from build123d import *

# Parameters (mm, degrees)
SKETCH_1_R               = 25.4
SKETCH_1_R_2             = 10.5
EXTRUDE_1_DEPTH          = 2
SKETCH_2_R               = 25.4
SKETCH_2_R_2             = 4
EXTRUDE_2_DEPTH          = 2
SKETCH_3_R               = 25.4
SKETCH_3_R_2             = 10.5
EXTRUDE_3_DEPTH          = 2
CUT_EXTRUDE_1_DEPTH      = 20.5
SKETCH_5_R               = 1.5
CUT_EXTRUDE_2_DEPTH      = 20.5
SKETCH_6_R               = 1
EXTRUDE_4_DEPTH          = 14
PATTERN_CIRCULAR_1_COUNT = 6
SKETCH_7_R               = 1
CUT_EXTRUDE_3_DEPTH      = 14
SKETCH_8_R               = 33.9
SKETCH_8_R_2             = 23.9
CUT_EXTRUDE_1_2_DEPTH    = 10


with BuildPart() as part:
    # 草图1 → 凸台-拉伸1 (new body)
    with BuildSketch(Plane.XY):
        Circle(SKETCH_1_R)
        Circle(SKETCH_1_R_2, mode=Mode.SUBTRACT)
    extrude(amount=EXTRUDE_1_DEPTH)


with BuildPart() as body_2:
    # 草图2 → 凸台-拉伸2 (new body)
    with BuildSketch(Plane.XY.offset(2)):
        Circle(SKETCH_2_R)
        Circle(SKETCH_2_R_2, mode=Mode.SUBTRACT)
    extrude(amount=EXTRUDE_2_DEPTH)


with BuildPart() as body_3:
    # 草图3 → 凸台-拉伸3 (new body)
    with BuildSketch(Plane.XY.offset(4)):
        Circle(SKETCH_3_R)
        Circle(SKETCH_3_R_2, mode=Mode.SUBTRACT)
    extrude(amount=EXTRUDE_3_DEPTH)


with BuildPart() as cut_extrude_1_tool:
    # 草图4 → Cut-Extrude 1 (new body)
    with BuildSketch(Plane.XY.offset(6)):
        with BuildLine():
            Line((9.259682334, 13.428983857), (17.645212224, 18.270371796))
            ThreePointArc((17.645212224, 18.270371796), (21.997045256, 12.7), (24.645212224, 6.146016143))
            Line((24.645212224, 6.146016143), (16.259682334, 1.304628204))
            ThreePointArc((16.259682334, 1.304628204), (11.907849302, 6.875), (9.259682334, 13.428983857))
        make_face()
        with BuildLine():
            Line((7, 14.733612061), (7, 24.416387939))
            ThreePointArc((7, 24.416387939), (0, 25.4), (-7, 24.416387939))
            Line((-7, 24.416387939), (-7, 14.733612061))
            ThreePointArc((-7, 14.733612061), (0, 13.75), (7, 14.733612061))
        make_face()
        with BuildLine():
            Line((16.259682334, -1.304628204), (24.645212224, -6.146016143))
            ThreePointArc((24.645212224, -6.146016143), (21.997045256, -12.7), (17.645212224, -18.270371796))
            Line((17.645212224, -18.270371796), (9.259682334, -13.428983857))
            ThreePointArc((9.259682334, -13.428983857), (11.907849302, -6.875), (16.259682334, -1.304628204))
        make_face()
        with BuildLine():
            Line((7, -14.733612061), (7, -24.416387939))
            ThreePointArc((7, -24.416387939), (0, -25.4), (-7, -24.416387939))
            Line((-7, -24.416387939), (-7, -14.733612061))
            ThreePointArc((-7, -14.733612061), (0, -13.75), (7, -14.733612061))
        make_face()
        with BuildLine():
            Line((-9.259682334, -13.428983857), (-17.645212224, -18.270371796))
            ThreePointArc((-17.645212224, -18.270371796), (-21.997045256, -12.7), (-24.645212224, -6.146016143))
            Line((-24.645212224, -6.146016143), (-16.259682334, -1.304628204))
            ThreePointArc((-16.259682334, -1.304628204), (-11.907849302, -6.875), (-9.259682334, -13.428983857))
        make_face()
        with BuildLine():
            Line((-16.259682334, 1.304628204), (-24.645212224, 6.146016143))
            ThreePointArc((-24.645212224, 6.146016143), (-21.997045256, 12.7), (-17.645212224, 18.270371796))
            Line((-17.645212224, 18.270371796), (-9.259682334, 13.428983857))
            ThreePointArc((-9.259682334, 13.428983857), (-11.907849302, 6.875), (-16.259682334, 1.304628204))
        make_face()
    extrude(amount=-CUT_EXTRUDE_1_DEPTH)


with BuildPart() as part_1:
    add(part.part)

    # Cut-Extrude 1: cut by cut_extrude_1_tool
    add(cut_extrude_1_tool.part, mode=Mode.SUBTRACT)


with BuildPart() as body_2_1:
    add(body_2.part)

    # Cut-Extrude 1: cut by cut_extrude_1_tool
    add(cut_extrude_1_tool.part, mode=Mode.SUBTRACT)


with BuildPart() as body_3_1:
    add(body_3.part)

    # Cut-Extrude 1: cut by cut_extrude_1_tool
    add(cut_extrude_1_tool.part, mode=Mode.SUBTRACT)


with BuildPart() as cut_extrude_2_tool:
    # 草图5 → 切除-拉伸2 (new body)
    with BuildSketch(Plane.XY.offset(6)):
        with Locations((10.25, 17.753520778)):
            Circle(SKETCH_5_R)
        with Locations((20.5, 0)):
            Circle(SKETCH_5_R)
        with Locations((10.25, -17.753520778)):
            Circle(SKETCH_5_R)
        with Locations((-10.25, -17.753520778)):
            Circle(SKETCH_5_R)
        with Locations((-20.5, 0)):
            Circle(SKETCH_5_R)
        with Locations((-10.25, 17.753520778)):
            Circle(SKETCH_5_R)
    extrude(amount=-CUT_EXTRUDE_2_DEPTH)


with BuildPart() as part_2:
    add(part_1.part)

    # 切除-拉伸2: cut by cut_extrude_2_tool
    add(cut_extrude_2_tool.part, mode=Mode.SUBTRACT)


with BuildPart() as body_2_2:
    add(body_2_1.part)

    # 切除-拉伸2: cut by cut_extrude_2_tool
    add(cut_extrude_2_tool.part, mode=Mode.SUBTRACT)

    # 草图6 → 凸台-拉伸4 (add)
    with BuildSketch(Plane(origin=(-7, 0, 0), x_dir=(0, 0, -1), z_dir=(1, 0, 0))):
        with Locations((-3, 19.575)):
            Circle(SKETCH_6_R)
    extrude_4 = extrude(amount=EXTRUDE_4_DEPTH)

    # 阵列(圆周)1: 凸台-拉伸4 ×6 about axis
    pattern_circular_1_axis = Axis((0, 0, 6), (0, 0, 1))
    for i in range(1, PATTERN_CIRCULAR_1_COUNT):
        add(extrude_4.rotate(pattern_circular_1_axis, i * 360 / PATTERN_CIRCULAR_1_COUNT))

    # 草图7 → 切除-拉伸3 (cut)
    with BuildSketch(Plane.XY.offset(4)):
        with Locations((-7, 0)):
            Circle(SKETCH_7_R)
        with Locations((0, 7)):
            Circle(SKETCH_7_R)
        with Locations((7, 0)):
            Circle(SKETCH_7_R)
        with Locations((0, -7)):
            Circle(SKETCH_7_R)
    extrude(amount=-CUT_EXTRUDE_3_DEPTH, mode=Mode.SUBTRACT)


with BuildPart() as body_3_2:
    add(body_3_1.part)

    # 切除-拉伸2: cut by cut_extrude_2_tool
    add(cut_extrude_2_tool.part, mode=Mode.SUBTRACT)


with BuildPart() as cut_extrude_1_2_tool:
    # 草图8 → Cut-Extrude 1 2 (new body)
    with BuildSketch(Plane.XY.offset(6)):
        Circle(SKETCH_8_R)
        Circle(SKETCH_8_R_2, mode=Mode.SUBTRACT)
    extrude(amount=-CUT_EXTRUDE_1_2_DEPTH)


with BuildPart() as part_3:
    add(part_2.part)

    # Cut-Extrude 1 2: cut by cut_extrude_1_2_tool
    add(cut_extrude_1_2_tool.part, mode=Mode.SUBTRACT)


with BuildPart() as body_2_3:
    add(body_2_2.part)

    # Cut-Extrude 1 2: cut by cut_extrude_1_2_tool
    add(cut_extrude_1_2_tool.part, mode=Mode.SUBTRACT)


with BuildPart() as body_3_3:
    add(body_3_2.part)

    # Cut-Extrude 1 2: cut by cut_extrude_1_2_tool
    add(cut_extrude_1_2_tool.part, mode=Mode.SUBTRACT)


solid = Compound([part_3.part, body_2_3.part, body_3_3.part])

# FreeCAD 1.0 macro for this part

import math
import FreeCAD as App
import Part
import Sketcher
from FreeCAD import Vector
Q = App.Units.Quantity

doc = App.newDocument("Part")
body = doc.addObject("PartDesign::Body", "Body")

# Sketch on XY plane
sketch1 = doc.addObject("Sketcher::SketchObject", "Sketch")
body.addObject(sketch1)
sketch1.AttachmentSupport = (doc.XY_Plane, [""])
sketch1.MapMode = "FlatFace"
sketch1.addGeometry([
    Part.Circle(Vector(0, 0, 0), Vector(0, 0, 1), 25.4),
    Part.Circle(Vector(0, 0, 0), Vector(0, 0, 1), 10.5),
], False)
sketch1.addConstraint([
    Sketcher.Constraint("Coincident", 0, 3, -1, 1),
    Sketcher.Constraint("Coincident", 1, 3, -1, 1),
    Sketcher.Constraint("Diameter", 1, Q("21 mm")),
    Sketcher.Constraint("Diameter", 0, Q("50.8 mm")),
])
pad1 = doc.addObject("PartDesign::Pad", "Pad")
body.addObject(pad1)
pad1.Profile = sketch1
pad1.Length = 2
body2 = doc.addObject("PartDesign::Body", "Body001")

# Sketch on XY plane
sketch2 = doc.addObject("Sketcher::SketchObject", "Sketch001")
body2.addObject(sketch2)
sketch2.AttachmentSupport = (doc.getObject("XY_Plane001"), [""])
sketch2.MapMode = "FlatFace"
sketch2.AttachmentOffset = App.Placement(Vector(0, 0, 2), App.Rotation())
sketch2.addGeometry([
    Part.Circle(Vector(0, 0, 0), Vector(0, 0, 1), 25.4),
    Part.Circle(Vector(0, 0, 0), Vector(0, 0, 1), 4),
], False)
sketch2.addConstraint([
    Sketcher.Constraint("Coincident", 0, 3, -1, 1),
    Sketcher.Constraint("Coincident", 1, 3, -1, 1),
    Sketcher.Constraint("Diameter", 1, Q("8 mm")),
    Sketcher.Constraint("Diameter", 0, Q("50.8 mm")),
])
pad2 = doc.addObject("PartDesign::Pad", "Pad001")
body2.addObject(pad2)
pad2.Profile = sketch2
pad2.Length = 2
body3 = doc.addObject("PartDesign::Body", "Body002")

# Sketch on XY plane
sketch3 = doc.addObject("Sketcher::SketchObject", "Sketch002")
body3.addObject(sketch3)
sketch3.AttachmentSupport = (doc.getObject("XY_Plane002"), [""])
sketch3.MapMode = "FlatFace"
sketch3.AttachmentOffset = App.Placement(Vector(0, 0, 4), App.Rotation())
sketch3.addGeometry([
    Part.Circle(Vector(0, 0, 0), Vector(0, 0, 1), 25.4),
    Part.Circle(Vector(0, 0, 0), Vector(0, 0, 1), 10.5),
], False)
sketch3.addConstraint([
    Sketcher.Constraint("Coincident", 0, 3, -1, 1),
    Sketcher.Constraint("Coincident", 1, 3, -1, 1),
    Sketcher.Constraint("Diameter", 1, Q("21 mm")),
    Sketcher.Constraint("Diameter", 0, Q("50.8 mm")),
])
pad3 = doc.addObject("PartDesign::Pad", "Pad002")
body3.addObject(pad3)
pad3.Profile = sketch3
pad3.Length = 2
body4 = doc.addObject("PartDesign::Body", "Body003")
body4.AllowCompound = True

# Sketch on XY plane
sketch4 = doc.addObject("Sketcher::SketchObject", "Sketch003")
body4.addObject(sketch4)
sketch4.AttachmentSupport = (doc.getObject("XY_Plane003"), [""])
sketch4.MapMode = "FlatFace"
sketch4.AttachmentOffset = App.Placement(Vector(0, 0, 6), App.Rotation())
sketch4.addGeometry([
    Part.LineSegment(Vector(17.645212, 18.270372, 0), Vector(9.259682, 13.428984, 0)),  # 0
    Part.ArcOfCircle(Part.Circle(Vector(33.904895, 19.575, 0), Vector(0, 0, 1), 25.4), math.radians(-165.99721), math.radians(-134.00279)),  # 1
    Part.LineSegment(Vector(16.259682, 1.304628, 0), Vector(24.645212, 6.146016, 0)),  # 2
    Part.ArcOfCircle(Part.Circle(Vector(0, 0, 0), Vector(0, 0, 1), 25.4), math.radians(14.00279), math.radians(45.99721)),  # 3
    Part.LineSegment(Vector(7, 14.733612, 0), Vector(7, 24.416388, 0)),  # 4
    Part.ArcOfCircle(Part.Circle(Vector(0, 0, 0), Vector(0, 0, 1), 25.4), math.radians(74.00279), math.radians(105.99721)),  # 5
    Part.LineSegment(Vector(-7, 24.416388, 0), Vector(-7, 14.733612, 0)),  # 6
    Part.ArcOfCircle(Part.Circle(Vector(0, 39.15, 0), Vector(0, 0, 1), 25.4), math.radians(-105.99721), math.radians(-74.00279)),  # 7
    Part.LineSegment(Vector(24.645212, -6.146016, 0), Vector(16.259682, -1.304628, 0)),  # 8
    Part.ArcOfCircle(Part.Circle(Vector(33.904895, -19.575, 0), Vector(0, 0, 1), 25.4), math.radians(134.00279), math.radians(165.99721)),  # 9
    Part.LineSegment(Vector(9.259682, -13.428984, 0), Vector(17.645212, -18.270372, 0)),  # 10
    Part.ArcOfCircle(Part.Circle(Vector(0, 0, 0), Vector(0, 0, 1), 25.4), math.radians(-45.99721), math.radians(-14.00279)),  # 11
    Part.LineSegment(Vector(7, -24.416388, 0), Vector(7, -14.733612, 0)),  # 12
    Part.ArcOfCircle(Part.Circle(Vector(0, -39.15, 0), Vector(0, 0, 1), 25.4), math.radians(74.00279), math.radians(105.99721)),  # 13
    Part.LineSegment(Vector(-7, -14.733612, 0), Vector(-7, -24.416388, 0)),  # 14
    Part.ArcOfCircle(Part.Circle(Vector(0, 0, 0), Vector(0, 0, 1), 25.4), math.radians(-105.99721), math.radians(-74.00279)),  # 15
    Part.LineSegment(Vector(-17.645212, -18.270372, 0), Vector(-9.259682, -13.428984, 0)),  # 16
    Part.ArcOfCircle(Part.Circle(Vector(-33.904895, -19.575, 0), Vector(0, 0, 1), 25.4), math.radians(14.00279), math.radians(45.99721)),  # 17
    Part.LineSegment(Vector(-16.259682, -1.304628, 0), Vector(-24.645212, -6.146016, 0)),  # 18
    Part.ArcOfCircle(Part.Circle(Vector(0, 0, 0), Vector(0, 0, 1), 25.4), math.radians(-165.99721), math.radians(-134.00279)),  # 19
    Part.LineSegment(Vector(-24.645212, 6.146016, 0), Vector(-16.259682, 1.304628, 0)),  # 20
    Part.ArcOfCircle(Part.Circle(Vector(-33.904895, 19.575, 0), Vector(0, 0, 1), 25.4), math.radians(-45.99721), math.radians(-14.00279)),  # 21
    Part.LineSegment(Vector(-9.259682, 13.428984, 0), Vector(-17.645212, 18.270372, 0)),  # 22
    Part.ArcOfCircle(Part.Circle(Vector(0, 0, 0), Vector(0, 0, 1), 25.4), math.radians(134.00279), math.radians(165.99721)),  # 23
], False)
sketch4.addConstraint([
    Sketcher.Constraint("Coincident", 0, 2, 1, 1),
    Sketcher.Constraint("Coincident", 1, 2, 2, 1),
    Sketcher.Constraint("Coincident", 2, 2, 3, 1),
    Sketcher.Constraint("Coincident", 3, 2, 0, 1),
    Sketcher.Constraint("Coincident", 4, 2, 5, 1),
    Sketcher.Constraint("Coincident", 5, 2, 6, 1),
    Sketcher.Constraint("Coincident", 6, 2, 7, 1),
    Sketcher.Constraint("Coincident", 7, 2, 4, 1),
    Sketcher.Constraint("Coincident", 8, 2, 9, 1),
    Sketcher.Constraint("Coincident", 9, 2, 10, 1),
    Sketcher.Constraint("Coincident", 10, 2, 11, 1),
    Sketcher.Constraint("Coincident", 11, 2, 8, 1),
    Sketcher.Constraint("Coincident", 12, 2, 13, 1),
    Sketcher.Constraint("Coincident", 13, 2, 14, 1),
    Sketcher.Constraint("Coincident", 14, 2, 15, 1),
    Sketcher.Constraint("Coincident", 15, 2, 12, 1),
    Sketcher.Constraint("Coincident", 16, 2, 17, 1),
    Sketcher.Constraint("Coincident", 17, 2, 18, 1),
    Sketcher.Constraint("Coincident", 18, 2, 19, 1),
    Sketcher.Constraint("Coincident", 19, 2, 16, 1),
    Sketcher.Constraint("Coincident", 20, 2, 21, 1),
    Sketcher.Constraint("Coincident", 21, 2, 22, 1),
    Sketcher.Constraint("Coincident", 22, 2, 23, 1),
    Sketcher.Constraint("Coincident", 23, 2, 20, 1),
    Sketcher.Constraint("Vertical", 4),
    Sketcher.Constraint("Vertical", 6),
    Sketcher.Constraint("Vertical", 12),
    Sketcher.Constraint("Vertical", 14),
    Sketcher.Constraint("Coincident", 3, 3, -1, 1),
    Sketcher.Constraint("Coincident", 5, 3, -1, 1),
    Sketcher.Constraint("Coincident", 11, 3, -1, 1),
    Sketcher.Constraint("Coincident", 15, 3, -1, 1),
    Sketcher.Constraint("Coincident", 19, 3, -1, 1),
    Sketcher.Constraint("Coincident", 23, 3, -1, 1),
    Sketcher.Constraint("Equal", 1, 3),
    Sketcher.Constraint("Equal", 3, 5),
    Sketcher.Constraint("Equal", 5, 7),
    Sketcher.Constraint("Equal", 7, 9),
    Sketcher.Constraint("Equal", 9, 11),
    Sketcher.Constraint("Equal", 11, 13),
    Sketcher.Constraint("Equal", 13, 15),
    Sketcher.Constraint("Equal", 15, 17),
    Sketcher.Constraint("Equal", 17, 19),
    Sketcher.Constraint("Equal", 19, 21),
    Sketcher.Constraint("Equal", 21, 23),
    Sketcher.Constraint("Symmetric", 7, 3, 13, 3, -1, 1),
    Sketcher.Constraint("Symmetric", 1, 3, 17, 3, -1, 1),
    Sketcher.Constraint("Symmetric", 9, 3, 21, 3, -1, 1),
    Sketcher.Constraint("Symmetric", 9, 3, 17, 3, -2),
    Sketcher.Constraint("Symmetric", 6, 2, 7, 2, -2),
    Sketcher.Constraint("Parallel", 0, 2),
    Sketcher.Constraint("Parallel", 8, 10),
    Sketcher.Constraint("Parallel", 2, 16),
    Sketcher.Constraint("Parallel", 16, 18),
    Sketcher.Constraint("Parallel", 10, 20),
    Sketcher.Constraint("Parallel", 20, 22),
    Sketcher.Constraint("Horizontal", 12, 2, 13, 2),
    Sketcher.Constraint("Horizontal", 9, 2, 16, 2),
    Sketcher.Constraint("Horizontal", 8, 2, 17, 2),
    Sketcher.Constraint("Horizontal", 11, 2, 18, 2),
    Sketcher.Constraint("Horizontal", 1, 2, 20, 2),
    Sketcher.Constraint("Horizontal", 0, 2, 21, 2),
    Sketcher.Constraint("Vertical", 1, 2, 8, 2),
    Sketcher.Constraint("Vertical", 0, 2, 9, 2),
    Sketcher.Constraint("Vertical", 7, 2, 12, 2),
    Sketcher.Constraint("Equal", 0, 2),
    Sketcher.Constraint("Radius", 1, Q("25.4 mm")),
    Sketcher.Constraint("Angle", 0, Q("-150 deg")),
    Sketcher.Constraint("DistanceX", -1, 1, 4, 2, Q("7 mm")),
    Sketcher.Constraint("DistanceX", 0, 2, 1, 2, Q("7 mm")),
    Sketcher.Constraint("DistanceY", -1, 1, 7, 3, Q("39.15 mm")),
    Sketcher.Constraint("DistanceY", 9, 3, 1, 3, Q("39.15 mm")),
    Sketcher.Constraint("DistanceY", 8, 2, -1, 1, Q("1.304628 mm")),
])
pad4 = doc.addObject("PartDesign::Pad", "Pad003")
body4.addObject(pad4)
pad4.Profile = sketch4
pad4.Length = 20.5
pad4.Reversed = True
doc.recompute()

body5 = doc.addObject("PartDesign::Body", "Body004")
body5.BaseFeature = body4
boolean = doc.addObject("PartDesign::Boolean", "Boolean")
body.addObject(boolean)
boolean.Type = "Cut"
boolean.addObjects([body5])
doc.recompute()

body6 = doc.addObject("PartDesign::Body", "Body005")
body6.BaseFeature = body4
boolean2 = doc.addObject("PartDesign::Boolean", "Boolean001")
body2.addObject(boolean2)
boolean2.Type = "Cut"
boolean2.addObjects([body6])
doc.recompute()

boolean3 = doc.addObject("PartDesign::Boolean", "Boolean002")
body3.addObject(boolean3)
boolean3.Type = "Cut"
boolean3.addObjects([body4])
body7 = doc.addObject("PartDesign::Body", "Body006")
body7.AllowCompound = True

# Sketch on XY plane
sketch5 = doc.addObject("Sketcher::SketchObject", "Sketch004")
body7.addObject(sketch5)
sketch5.AttachmentSupport = (doc.getObject("XY_Plane006"), [""])
sketch5.MapMode = "FlatFace"
sketch5.AttachmentOffset = App.Placement(Vector(0, 0, 6), App.Rotation())
sketch5.addGeometry([
    Part.Circle(Vector(10.25, 17.753521, 0), Vector(0, 0, 1), 1.5),  # 0
    Part.Circle(Vector(20.5, 0, 0), Vector(0, 0, 1), 1.5),  # 1
    Part.Circle(Vector(10.25, -17.753521, 0), Vector(0, 0, 1), 1.5),  # 2
    Part.Circle(Vector(-10.25, -17.753521, 0), Vector(0, 0, 1), 1.5),  # 3
    Part.Circle(Vector(-20.5, 0, 0), Vector(0, 0, 1), 1.5),  # 4
    Part.Circle(Vector(-10.25, 17.753521, 0), Vector(0, 0, 1), 1.5),  # 5
], False)
sketch5.addConstraint([
    Sketcher.Constraint("Equal", 0, 1),
    Sketcher.Constraint("Equal", 1, 2),
    Sketcher.Constraint("Equal", 2, 3),
    Sketcher.Constraint("Equal", 3, 4),
    Sketcher.Constraint("Equal", 4, 5),
    Sketcher.Constraint("Symmetric", 0, 3, 3, 3, -1, 1),
    Sketcher.Constraint("Symmetric", 1, 3, 4, 3, -1, 1),
    Sketcher.Constraint("Symmetric", 2, 3, 5, 3, -1, 1),
    Sketcher.Constraint("Symmetric", 2, 3, 3, 3, -2),
    Sketcher.Constraint("PointOnObject", 1, 3, -1),
    Sketcher.Constraint("Diameter", 0, Q("3 mm")),
    Sketcher.Constraint("DistanceX", 4, 3, 1, 3, Q("41 mm")),
    Sketcher.Constraint("DistanceX", 3, 3, 2, 3, Q("20.5 mm")),
    Sketcher.Constraint("DistanceY", -1, 1, 0, 3, Q("17.753521 mm")),
])
pad5 = doc.addObject("PartDesign::Pad", "Pad004")
body7.addObject(pad5)
pad5.Profile = sketch5
pad5.Length = 20.5
pad5.Reversed = True
doc.recompute()

body8 = doc.addObject("PartDesign::Body", "Body007")
body8.BaseFeature = body7
boolean4 = doc.addObject("PartDesign::Boolean", "Boolean003")
body.addObject(boolean4)
boolean4.Type = "Cut"
boolean4.addObjects([body8])
doc.recompute()

body9 = doc.addObject("PartDesign::Body", "Body008")
body9.BaseFeature = body7
boolean5 = doc.addObject("PartDesign::Boolean", "Boolean004")
body2.addObject(boolean5)
boolean5.Type = "Cut"
boolean5.addObjects([body9])
doc.recompute()

# Sketch on YZ plane
sketch6 = doc.addObject("Sketcher::SketchObject", "Sketch005")
body2.addObject(sketch6)
sketch6.AttachmentSupport = (doc.getObject("YZ_Plane001"), [""])
sketch6.MapMode = "FlatFace"
sketch6.AttachmentOffset = App.Placement(Vector(0, 0, -7), App.Rotation())
sketch6.addGeometry(Part.Circle(Vector(19.575, 3, 0), Vector(0, 0, 1), 1), False)
sketch6.addConstraint([
    Sketcher.Constraint("Diameter", 0, Q("2 mm")),
    Sketcher.Constraint("DistanceY", -1, 1, 0, 3, Q("3 mm")),
    Sketcher.Constraint("DistanceX", -1, 1, 0, 3, Q("19.575 mm")),
])
pad6 = doc.addObject("PartDesign::Pad", "Pad005")
body2.addObject(pad6)
pad6.Profile = sketch6
pad6.Length = 14
doc.recompute()

polarpattern = doc.addObject("PartDesign::PolarPattern", "PolarPattern")
body2.addObject(polarpattern)
polarpattern.Originals = [pad6]
polarpattern.Axis = (doc.getObject("Z_Axis001"), [""])
polarpattern.Angle = 360
polarpattern.Occurrences = 6
body2.Tip = polarpattern

# Sketch on XY plane
sketch7 = doc.addObject("Sketcher::SketchObject", "Sketch006")
body2.addObject(sketch7)
sketch7.AttachmentSupport = (doc.getObject("XY_Plane001"), [""])
sketch7.MapMode = "FlatFace"
sketch7.AttachmentOffset = App.Placement(Vector(0, 0, 4), App.Rotation())
sketch7.addGeometry([
    Part.Circle(Vector(-7, 0, 0), Vector(0, 0, 1), 1),
    Part.Circle(Vector(0, 7, 0), Vector(0, 0, 1), 1),
    Part.Circle(Vector(7, 0, 0), Vector(0, 0, 1), 1),
    Part.Circle(Vector(0, -7, 0), Vector(0, 0, 1), 1),
], False)
sketch7.addConstraint([
    Sketcher.Constraint("Equal", 0, 1),
    Sketcher.Constraint("Equal", 1, 2),
    Sketcher.Constraint("Equal", 2, 3),
    Sketcher.Constraint("Symmetric", 0, 3, 2, 3, -1, 1),
    Sketcher.Constraint("Symmetric", 1, 3, 3, 3, -1, 1),
    Sketcher.Constraint("PointOnObject", 0, 3, -1),
    Sketcher.Constraint("PointOnObject", 1, 3, -2),
    Sketcher.Constraint("Diameter", 0, Q("2 mm")),
    Sketcher.Constraint("DistanceX", 0, 3, -1, 1, Q("7 mm")),
    Sketcher.Constraint("DistanceY", -1, 1, 1, 3, Q("7 mm")),
])
pocket1 = doc.addObject("PartDesign::Pocket", "Pocket")
body2.addObject(pocket1)
pocket1.Profile = sketch7
pocket1.Length = 14
doc.recompute()

boolean6 = doc.addObject("PartDesign::Boolean", "Boolean005")
body3.addObject(boolean6)
boolean6.Type = "Cut"
boolean6.addObjects([body7])
body10 = doc.addObject("PartDesign::Body", "Body009")

# Sketch on XY plane
sketch8 = doc.addObject("Sketcher::SketchObject", "Sketch007")
body10.addObject(sketch8)
sketch8.AttachmentSupport = (doc.getObject("XY_Plane009"), [""])
sketch8.MapMode = "FlatFace"
sketch8.AttachmentOffset = App.Placement(Vector(0, 0, 6), App.Rotation())
sketch8.addGeometry([
    Part.Circle(Vector(0, 0, 0), Vector(0, 0, 1), 33.9),
    Part.Circle(Vector(0, 0, 0), Vector(0, 0, 1), 23.9),
], False)
sketch8.addConstraint([
    Sketcher.Constraint("Coincident", 0, 3, -1, 1),
    Sketcher.Constraint("Coincident", 1, 3, -1, 1),
    Sketcher.Constraint("Diameter", 0, Q("67.8 mm")),
    Sketcher.Constraint("Diameter", 1, Q("47.8 mm")),
])
pad7 = doc.addObject("PartDesign::Pad", "Pad006")
body10.addObject(pad7)
pad7.Profile = sketch8
pad7.Length = 10
pad7.Reversed = True
doc.recompute()

body11 = doc.addObject("PartDesign::Body", "Body010")
body11.BaseFeature = body10
boolean7 = doc.addObject("PartDesign::Boolean", "Boolean006")
body.addObject(boolean7)
boolean7.Type = "Cut"
boolean7.addObjects([body11])
doc.recompute()

body12 = doc.addObject("PartDesign::Body", "Body011")
body12.BaseFeature = body10
boolean8 = doc.addObject("PartDesign::Boolean", "Boolean007")
body2.addObject(boolean8)
boolean8.Type = "Cut"
boolean8.addObjects([body12])
doc.recompute()

boolean9 = doc.addObject("PartDesign::Boolean", "Boolean008")
body3.addObject(boolean9)
boolean9.Type = "Cut"
boolean9.addObjects([body10])

doc.recompute()
